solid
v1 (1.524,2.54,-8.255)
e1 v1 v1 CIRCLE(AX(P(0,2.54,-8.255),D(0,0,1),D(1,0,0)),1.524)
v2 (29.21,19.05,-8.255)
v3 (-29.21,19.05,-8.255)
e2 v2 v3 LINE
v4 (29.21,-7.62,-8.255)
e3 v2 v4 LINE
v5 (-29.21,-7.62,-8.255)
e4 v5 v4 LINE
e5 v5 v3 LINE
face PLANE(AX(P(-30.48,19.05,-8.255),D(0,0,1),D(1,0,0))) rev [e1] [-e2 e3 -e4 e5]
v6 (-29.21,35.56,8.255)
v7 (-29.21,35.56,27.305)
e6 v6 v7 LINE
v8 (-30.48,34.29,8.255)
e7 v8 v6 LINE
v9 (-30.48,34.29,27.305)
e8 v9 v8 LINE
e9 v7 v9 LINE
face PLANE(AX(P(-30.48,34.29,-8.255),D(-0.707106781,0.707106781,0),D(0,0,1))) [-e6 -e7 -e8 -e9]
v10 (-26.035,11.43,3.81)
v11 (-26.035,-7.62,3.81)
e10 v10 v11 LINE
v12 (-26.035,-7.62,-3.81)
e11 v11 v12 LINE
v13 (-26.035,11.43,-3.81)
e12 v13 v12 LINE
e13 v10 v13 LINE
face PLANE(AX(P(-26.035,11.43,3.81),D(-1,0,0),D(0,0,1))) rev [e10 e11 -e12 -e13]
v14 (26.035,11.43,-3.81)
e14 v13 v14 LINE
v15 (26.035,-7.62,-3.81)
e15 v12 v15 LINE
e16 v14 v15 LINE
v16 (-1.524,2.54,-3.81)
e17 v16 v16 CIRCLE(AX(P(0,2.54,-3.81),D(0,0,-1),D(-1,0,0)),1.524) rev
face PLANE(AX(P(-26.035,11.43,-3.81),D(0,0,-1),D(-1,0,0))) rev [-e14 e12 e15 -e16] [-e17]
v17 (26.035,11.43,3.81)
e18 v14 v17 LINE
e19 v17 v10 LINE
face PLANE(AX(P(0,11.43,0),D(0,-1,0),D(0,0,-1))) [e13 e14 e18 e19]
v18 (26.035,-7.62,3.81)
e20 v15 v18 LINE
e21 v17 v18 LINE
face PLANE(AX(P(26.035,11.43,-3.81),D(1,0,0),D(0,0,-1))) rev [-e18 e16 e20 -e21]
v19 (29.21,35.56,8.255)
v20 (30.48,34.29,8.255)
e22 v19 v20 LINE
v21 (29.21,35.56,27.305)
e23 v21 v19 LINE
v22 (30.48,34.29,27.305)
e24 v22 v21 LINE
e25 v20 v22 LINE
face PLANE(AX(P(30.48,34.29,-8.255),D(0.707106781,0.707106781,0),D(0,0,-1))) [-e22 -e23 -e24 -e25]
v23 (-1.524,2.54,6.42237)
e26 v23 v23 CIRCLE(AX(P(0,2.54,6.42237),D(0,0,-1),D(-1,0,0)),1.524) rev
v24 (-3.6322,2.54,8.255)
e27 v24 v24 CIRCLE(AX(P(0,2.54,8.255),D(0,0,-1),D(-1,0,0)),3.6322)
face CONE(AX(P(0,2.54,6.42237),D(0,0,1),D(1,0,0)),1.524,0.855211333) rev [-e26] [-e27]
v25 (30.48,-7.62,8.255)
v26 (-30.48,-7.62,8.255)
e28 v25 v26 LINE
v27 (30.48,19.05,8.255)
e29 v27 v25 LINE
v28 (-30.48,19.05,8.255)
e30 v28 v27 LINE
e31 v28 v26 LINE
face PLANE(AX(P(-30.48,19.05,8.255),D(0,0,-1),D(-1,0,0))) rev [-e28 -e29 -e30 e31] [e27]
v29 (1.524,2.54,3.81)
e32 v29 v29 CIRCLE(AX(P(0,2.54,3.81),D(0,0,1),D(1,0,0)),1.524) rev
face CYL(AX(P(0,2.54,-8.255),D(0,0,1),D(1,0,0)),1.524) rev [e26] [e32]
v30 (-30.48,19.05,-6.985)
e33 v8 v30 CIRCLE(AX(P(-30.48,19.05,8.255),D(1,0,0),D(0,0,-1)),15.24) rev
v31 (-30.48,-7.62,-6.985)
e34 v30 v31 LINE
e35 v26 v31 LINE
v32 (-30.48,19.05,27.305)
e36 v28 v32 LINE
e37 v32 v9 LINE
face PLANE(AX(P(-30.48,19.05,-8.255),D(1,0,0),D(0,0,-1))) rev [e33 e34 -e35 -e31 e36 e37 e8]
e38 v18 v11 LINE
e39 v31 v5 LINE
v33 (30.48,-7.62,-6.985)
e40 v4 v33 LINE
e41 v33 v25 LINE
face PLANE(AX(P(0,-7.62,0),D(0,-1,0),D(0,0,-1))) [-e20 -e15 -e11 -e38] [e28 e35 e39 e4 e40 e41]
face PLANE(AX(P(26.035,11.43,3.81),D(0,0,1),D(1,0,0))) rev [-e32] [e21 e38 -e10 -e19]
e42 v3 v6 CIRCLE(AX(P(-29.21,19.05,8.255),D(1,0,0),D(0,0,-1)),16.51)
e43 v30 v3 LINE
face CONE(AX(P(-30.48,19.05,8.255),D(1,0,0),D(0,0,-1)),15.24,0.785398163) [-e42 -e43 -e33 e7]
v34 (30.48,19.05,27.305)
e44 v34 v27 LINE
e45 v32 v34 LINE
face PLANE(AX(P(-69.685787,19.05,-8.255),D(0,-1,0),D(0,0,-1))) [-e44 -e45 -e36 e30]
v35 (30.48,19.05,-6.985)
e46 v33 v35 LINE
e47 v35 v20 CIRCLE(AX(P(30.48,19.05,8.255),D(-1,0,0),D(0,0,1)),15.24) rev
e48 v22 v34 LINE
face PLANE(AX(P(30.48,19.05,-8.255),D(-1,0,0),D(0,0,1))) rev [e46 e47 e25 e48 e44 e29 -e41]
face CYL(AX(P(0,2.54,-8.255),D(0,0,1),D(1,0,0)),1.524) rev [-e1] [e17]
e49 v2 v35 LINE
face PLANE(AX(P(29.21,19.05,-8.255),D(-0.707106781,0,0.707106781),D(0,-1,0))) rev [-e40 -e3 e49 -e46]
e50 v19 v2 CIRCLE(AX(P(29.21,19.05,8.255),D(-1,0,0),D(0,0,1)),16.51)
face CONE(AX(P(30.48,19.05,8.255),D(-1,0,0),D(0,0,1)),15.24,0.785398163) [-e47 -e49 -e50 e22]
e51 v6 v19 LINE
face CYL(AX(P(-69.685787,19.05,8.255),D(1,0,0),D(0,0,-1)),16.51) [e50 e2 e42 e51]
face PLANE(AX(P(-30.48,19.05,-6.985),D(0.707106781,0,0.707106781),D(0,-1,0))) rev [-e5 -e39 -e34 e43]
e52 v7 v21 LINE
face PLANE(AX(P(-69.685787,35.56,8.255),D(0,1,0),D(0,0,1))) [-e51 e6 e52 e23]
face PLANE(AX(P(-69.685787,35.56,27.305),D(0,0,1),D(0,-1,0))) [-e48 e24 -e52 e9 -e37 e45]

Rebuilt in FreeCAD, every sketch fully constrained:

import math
import FreeCAD as App
import Part
import Sketcher

V = App.Vector
Q = App.Units.Quantity


def edges_at(feature, points):
    """Names of the edges that pass closest to the given points."""
    edges = feature.Shape.Edges
    near = lambda p: min(range(len(edges)), key=lambda i: edges[i].distToShape(Part.Vertex(*p))[0])
    return sorted({f"Edge{near(p) + 1}" for p in points})


def add_polygon(sketch, points):
    """Adds a closed chain of lines whose ends are joined by coincident constraints."""
    first, n = sketch.GeometryCount, len(points)
    for a, b in zip(points, points[1:] + points[:1]):
        sketch.addGeometry(Part.LineSegment(App.Vector(*a, 0), App.Vector(*b, 0)), False)
    for i in range(n):
        sketch.addConstraint(Sketcher.Constraint("Coincident", first + i, 2, first + (i + 1) % n, 1))

doc = App.newDocument("Part")
body = doc.addObject("PartDesign::Body", "Body")

# Sketch on XZ plane
sketch1 = body.newObject("Sketcher::SketchObject", "Sketch")
sketch1.AttachmentSupport = (doc.getObject("XZ_Plane"), [""])
sketch1.MapMode = "FlatFace"
add_polygon(sketch1, [(-30.48, -8.255), (-30.48, 8.255), (30.48, 8.255), (30.48, -8.255)])  # lines 0-3
add_polygon(sketch1, [(25.4, 3.175), (-25.4, 3.175), (-25.4, -3.175), (25.4, -3.175)])  # lines 4-7
sketch1.addConstraint([
    Sketcher.Constraint("Vertical", 0),
    Sketcher.Constraint("Horizontal", 1),
    Sketcher.Constraint("Vertical", 2),
    Sketcher.Constraint("Horizontal", 3),
    Sketcher.Constraint("Horizontal", 4),
    Sketcher.Constraint("Vertical", 5),
    Sketcher.Constraint("Horizontal", 6),
    Sketcher.Constraint("Vertical", 7),
    Sketcher.Constraint("Symmetric", 0, 2, 2, 2, -1, 1),
    Sketcher.Constraint("Symmetric", 4, 2, 6, 2, -1, 1),
    Sketcher.Constraint("DistanceX", 4, 2, 4, 1, Q("2 in")),
    Sketcher.Constraint("DistanceX", 1, 1, 1, 2, Q("2.4 in")),
    Sketcher.Constraint("DistanceY", 0, 1, 0, 2, Q("0.65 in")),
    Sketcher.Constraint("DistanceY", 5, 2, 5, 1, Q("0.25 in")),
])
pad1 = body.newObject("PartDesign::Pad", "Pad")
pad1.Profile = sketch1
pad1.Length = Q("0.75 in")
pad1.Reversed = True

# Sketch on YZ plane
sketch2 = body.newObject("Sketcher::SketchObject", "Sketch001")
sketch2.AttachmentSupport = (doc.getObject("YZ_Plane"), [""])
sketch2.MapMode = "FlatFace"
sketch2.AttachmentOffset = App.Placement(V(0, 0, 1.2 * 25.4), App.Rotation())
sketch2.addGeometry([
    Part.LineSegment(V(35.56, 8.255, 0), V(35.56, 27.305, 0)),
    Part.LineSegment(V(35.56, 27.305, 0), V(19.05, 27.305, 0)),
    Part.LineSegment(V(19.05, 27.305, 0), V(19.05, -8.255, 0)),
    Part.ArcOfCircle(Part.Circle(V(19.05, 8.255, 0), V(0, 0, 1), 16.51), math.radians(-90), math.radians(0)),
], False)
sketch2.addConstraint([
    Sketcher.Constraint("Coincident", 0, 2, 1, 1),
    Sketcher.Constraint("Coincident", 1, 2, 2, 1),
    Sketcher.Constraint("Coincident", 2, 2, 3, 1),
    Sketcher.Constraint("Tangent", 3, 2, 0, 1),
    Sketcher.Constraint("Vertical", 0),
    Sketcher.Constraint("Horizontal", 1),
    Sketcher.Constraint("Vertical", 2),
    Sketcher.Constraint("Vertical", 3, 3, 1, 2),
    Sketcher.Constraint("Radius", 3, Q("0.65 in")),
    Sketcher.Constraint("DistanceY", 2, 2, 2, 1, Q("1.4 in")),
    Sketcher.Constraint("DistanceX", -1, 1, 0, 2, Q("1.4 in")),
    Sketcher.Constraint("DistanceY", -1, 1, 3, 3, Q("0.325 in")),
])
pad2 = body.newObject("PartDesign::Pad", "Pad001")
pad2.Profile = sketch2
pad2.Length = Q("2.4 in")
pad2.Reversed = True

# Sketch on XZ plane
sketch3 = body.newObject("Sketcher::SketchObject", "Sketch002")
sketch3.AttachmentSupport = (doc.getObject("XZ_Plane"), [""])
sketch3.MapMode = "FlatFace"
add_polygon(sketch3, [(-30.48, 8.255), (-30.48, -8.255), (30.48, -8.255), (30.48, 8.255)])  # lines 0-3
add_polygon(sketch3, [(25.4, -3.175), (-25.4, -3.175), (-25.4, 3.175), (25.4, 3.175)])  # lines 4-7
sketch3.addConstraint([
    Sketcher.Constraint("Vertical", 0),
    Sketcher.Constraint("Horizontal", 1),
    Sketcher.Constraint("Vertical", 2),
    Sketcher.Constraint("Horizontal", 3),
    Sketcher.Constraint("Horizontal", 4),
    Sketcher.Constraint("Vertical", 5),
    Sketcher.Constraint("Horizontal", 6),
    Sketcher.Constraint("Vertical", 7),
    Sketcher.Constraint("Symmetric", 0, 2, 2, 2, -1, 1),
    Sketcher.Constraint("Symmetric", 4, 2, 6, 2, -1, 1),
    Sketcher.Constraint("DistanceX", 4, 2, 4, 1, Q("2 in")),
    Sketcher.Constraint("DistanceX", 1, 1, 1, 2, Q("2.4 in")),
    Sketcher.Constraint("DistanceY", 0, 2, 0, 1, Q("0.65 in")),
    Sketcher.Constraint("DistanceY", 5, 1, 5, 2, Q("0.25 in")),
])
pad3 = body.newObject("PartDesign::Pad", "Pad002")
pad3.Profile = sketch3
pad3.Length = Q("0.3 in")

# Sketch on XZ plane
sketch4 = body.newObject("Sketcher::SketchObject", "Sketch003")
sketch4.AttachmentSupport = (doc.getObject("XZ_Plane"), [""])
sketch4.MapMode = "FlatFace"
sketch4.AttachmentOffset = App.Placement(V(0, 0, -0.75 * 25.4), App.Rotation())
add_polygon(sketch4, [(-25.4, 3.175), (-25.4, -3.175), (25.4, -3.175), (25.4, 3.175)])  # lines 0-3
sketch4.addConstraint([
    Sketcher.Constraint("Vertical", 0),
    Sketcher.Constraint("Horizontal", 1),
    Sketcher.Constraint("Vertical", 2),
    Sketcher.Constraint("Horizontal", 3),
    Sketcher.Constraint("Symmetric", 0, 2, 2, 2, -1, 1),
    Sketcher.Constraint("DistanceX", 1, 1, 1, 2, Q("2 in")),
    Sketcher.Constraint("DistanceY", 0, 2, 0, 1, Q("0.25 in")),
])
pad4 = body.newObject("PartDesign::Pad", "Pad003")
pad4.Profile = sketch4
pad4.Length = Q("0.3 in")

# Sketch on XY plane
sketch5 = body.newObject("Sketcher::SketchObject", "Sketch004")
sketch5.AttachmentSupport = (doc.getObject("XY_Plane"), [""])
sketch5.MapMode = "FlatFace"
sketch5.AttachmentOffset = App.Placement(V(0, 0, 0.325 * 25.4), App.Rotation())
sketch5.addGeometry(Part.Circle(V(0, 2.54, 0), V(0, 0, 1), 1.524), False)
sketch5.addConstraint([
    Sketcher.Constraint("PointOnObject", 0, 3, -2),
    Sketcher.Constraint("Diameter", 0, Q("0.12 in")),
    Sketcher.Constraint("DistanceY", -1, 1, 0, 3, Q("0.1 in")),
])
pocket1 = body.newObject("PartDesign::Pocket", "Pocket")
pocket1.Profile = sketch5
pocket1.Type = "ThroughAll"
doc.recompute()

chamfer = body.newObject("PartDesign::Chamfer", "Chamfer")
chamfer.Base = (pocket1, edges_at(pocket1, [(-1.524, 2.54, 8.255)]))
chamfer.ChamferType = "Two distances"
chamfer.Size = Q("0.083 in")
chamfer.Size2 = 1.83263

# Sketch on XZ plane
sketch6 = body.newObject("Sketcher::SketchObject", "Sketch005")
sketch6.AttachmentSupport = (doc.getObject("XZ_Plane"), [""])
sketch6.MapMode = "FlatFace"
sketch6.AttachmentOffset = App.Placement(V(0, 0, 0.3 * 25.4), App.Rotation())
add_polygon(sketch6, [(-26.035, 3.81), (-26.035, -3.81), (26.035, -3.81), (26.035, 3.81)])  # lines 0-3
sketch6.addConstraint([
    Sketcher.Constraint("Vertical", 0),
    Sketcher.Constraint("Horizontal", 1),
    Sketcher.Constraint("Vertical", 2),
    Sketcher.Constraint("Horizontal", 3),
    Sketcher.Constraint("Symmetric", 0, 2, 2, 2, -1, 1),
    Sketcher.Constraint("DistanceY", 0, 2, 0, 1, Q("0.3 in")),
    Sketcher.Constraint("DistanceX", 1, 1, 1, 2, Q("2.05 in")),
])
pocket2 = body.newObject("PartDesign::Pocket", "Pocket001")
pocket2.Profile = sketch6
pocket2.Length = Q("0.75 in")
doc.recompute()

chamfer2 = body.newObject("PartDesign::Chamfer", "Chamfer001")
chamfer2.Base = (pocket2, edges_at(pocket2, [
    (30.48, 30.724, -3.419),
    (30.48, 35.56, 17.78),
    (-30.48, 30.724, -3.419),
    (-30.48, 35.56, 17.78),
    (-30.48, 5.715, -8.255),
    (30.48, 5.715, -8.255),
]))
chamfer2.Size = Q("0.05 in")

doc.recompute()
